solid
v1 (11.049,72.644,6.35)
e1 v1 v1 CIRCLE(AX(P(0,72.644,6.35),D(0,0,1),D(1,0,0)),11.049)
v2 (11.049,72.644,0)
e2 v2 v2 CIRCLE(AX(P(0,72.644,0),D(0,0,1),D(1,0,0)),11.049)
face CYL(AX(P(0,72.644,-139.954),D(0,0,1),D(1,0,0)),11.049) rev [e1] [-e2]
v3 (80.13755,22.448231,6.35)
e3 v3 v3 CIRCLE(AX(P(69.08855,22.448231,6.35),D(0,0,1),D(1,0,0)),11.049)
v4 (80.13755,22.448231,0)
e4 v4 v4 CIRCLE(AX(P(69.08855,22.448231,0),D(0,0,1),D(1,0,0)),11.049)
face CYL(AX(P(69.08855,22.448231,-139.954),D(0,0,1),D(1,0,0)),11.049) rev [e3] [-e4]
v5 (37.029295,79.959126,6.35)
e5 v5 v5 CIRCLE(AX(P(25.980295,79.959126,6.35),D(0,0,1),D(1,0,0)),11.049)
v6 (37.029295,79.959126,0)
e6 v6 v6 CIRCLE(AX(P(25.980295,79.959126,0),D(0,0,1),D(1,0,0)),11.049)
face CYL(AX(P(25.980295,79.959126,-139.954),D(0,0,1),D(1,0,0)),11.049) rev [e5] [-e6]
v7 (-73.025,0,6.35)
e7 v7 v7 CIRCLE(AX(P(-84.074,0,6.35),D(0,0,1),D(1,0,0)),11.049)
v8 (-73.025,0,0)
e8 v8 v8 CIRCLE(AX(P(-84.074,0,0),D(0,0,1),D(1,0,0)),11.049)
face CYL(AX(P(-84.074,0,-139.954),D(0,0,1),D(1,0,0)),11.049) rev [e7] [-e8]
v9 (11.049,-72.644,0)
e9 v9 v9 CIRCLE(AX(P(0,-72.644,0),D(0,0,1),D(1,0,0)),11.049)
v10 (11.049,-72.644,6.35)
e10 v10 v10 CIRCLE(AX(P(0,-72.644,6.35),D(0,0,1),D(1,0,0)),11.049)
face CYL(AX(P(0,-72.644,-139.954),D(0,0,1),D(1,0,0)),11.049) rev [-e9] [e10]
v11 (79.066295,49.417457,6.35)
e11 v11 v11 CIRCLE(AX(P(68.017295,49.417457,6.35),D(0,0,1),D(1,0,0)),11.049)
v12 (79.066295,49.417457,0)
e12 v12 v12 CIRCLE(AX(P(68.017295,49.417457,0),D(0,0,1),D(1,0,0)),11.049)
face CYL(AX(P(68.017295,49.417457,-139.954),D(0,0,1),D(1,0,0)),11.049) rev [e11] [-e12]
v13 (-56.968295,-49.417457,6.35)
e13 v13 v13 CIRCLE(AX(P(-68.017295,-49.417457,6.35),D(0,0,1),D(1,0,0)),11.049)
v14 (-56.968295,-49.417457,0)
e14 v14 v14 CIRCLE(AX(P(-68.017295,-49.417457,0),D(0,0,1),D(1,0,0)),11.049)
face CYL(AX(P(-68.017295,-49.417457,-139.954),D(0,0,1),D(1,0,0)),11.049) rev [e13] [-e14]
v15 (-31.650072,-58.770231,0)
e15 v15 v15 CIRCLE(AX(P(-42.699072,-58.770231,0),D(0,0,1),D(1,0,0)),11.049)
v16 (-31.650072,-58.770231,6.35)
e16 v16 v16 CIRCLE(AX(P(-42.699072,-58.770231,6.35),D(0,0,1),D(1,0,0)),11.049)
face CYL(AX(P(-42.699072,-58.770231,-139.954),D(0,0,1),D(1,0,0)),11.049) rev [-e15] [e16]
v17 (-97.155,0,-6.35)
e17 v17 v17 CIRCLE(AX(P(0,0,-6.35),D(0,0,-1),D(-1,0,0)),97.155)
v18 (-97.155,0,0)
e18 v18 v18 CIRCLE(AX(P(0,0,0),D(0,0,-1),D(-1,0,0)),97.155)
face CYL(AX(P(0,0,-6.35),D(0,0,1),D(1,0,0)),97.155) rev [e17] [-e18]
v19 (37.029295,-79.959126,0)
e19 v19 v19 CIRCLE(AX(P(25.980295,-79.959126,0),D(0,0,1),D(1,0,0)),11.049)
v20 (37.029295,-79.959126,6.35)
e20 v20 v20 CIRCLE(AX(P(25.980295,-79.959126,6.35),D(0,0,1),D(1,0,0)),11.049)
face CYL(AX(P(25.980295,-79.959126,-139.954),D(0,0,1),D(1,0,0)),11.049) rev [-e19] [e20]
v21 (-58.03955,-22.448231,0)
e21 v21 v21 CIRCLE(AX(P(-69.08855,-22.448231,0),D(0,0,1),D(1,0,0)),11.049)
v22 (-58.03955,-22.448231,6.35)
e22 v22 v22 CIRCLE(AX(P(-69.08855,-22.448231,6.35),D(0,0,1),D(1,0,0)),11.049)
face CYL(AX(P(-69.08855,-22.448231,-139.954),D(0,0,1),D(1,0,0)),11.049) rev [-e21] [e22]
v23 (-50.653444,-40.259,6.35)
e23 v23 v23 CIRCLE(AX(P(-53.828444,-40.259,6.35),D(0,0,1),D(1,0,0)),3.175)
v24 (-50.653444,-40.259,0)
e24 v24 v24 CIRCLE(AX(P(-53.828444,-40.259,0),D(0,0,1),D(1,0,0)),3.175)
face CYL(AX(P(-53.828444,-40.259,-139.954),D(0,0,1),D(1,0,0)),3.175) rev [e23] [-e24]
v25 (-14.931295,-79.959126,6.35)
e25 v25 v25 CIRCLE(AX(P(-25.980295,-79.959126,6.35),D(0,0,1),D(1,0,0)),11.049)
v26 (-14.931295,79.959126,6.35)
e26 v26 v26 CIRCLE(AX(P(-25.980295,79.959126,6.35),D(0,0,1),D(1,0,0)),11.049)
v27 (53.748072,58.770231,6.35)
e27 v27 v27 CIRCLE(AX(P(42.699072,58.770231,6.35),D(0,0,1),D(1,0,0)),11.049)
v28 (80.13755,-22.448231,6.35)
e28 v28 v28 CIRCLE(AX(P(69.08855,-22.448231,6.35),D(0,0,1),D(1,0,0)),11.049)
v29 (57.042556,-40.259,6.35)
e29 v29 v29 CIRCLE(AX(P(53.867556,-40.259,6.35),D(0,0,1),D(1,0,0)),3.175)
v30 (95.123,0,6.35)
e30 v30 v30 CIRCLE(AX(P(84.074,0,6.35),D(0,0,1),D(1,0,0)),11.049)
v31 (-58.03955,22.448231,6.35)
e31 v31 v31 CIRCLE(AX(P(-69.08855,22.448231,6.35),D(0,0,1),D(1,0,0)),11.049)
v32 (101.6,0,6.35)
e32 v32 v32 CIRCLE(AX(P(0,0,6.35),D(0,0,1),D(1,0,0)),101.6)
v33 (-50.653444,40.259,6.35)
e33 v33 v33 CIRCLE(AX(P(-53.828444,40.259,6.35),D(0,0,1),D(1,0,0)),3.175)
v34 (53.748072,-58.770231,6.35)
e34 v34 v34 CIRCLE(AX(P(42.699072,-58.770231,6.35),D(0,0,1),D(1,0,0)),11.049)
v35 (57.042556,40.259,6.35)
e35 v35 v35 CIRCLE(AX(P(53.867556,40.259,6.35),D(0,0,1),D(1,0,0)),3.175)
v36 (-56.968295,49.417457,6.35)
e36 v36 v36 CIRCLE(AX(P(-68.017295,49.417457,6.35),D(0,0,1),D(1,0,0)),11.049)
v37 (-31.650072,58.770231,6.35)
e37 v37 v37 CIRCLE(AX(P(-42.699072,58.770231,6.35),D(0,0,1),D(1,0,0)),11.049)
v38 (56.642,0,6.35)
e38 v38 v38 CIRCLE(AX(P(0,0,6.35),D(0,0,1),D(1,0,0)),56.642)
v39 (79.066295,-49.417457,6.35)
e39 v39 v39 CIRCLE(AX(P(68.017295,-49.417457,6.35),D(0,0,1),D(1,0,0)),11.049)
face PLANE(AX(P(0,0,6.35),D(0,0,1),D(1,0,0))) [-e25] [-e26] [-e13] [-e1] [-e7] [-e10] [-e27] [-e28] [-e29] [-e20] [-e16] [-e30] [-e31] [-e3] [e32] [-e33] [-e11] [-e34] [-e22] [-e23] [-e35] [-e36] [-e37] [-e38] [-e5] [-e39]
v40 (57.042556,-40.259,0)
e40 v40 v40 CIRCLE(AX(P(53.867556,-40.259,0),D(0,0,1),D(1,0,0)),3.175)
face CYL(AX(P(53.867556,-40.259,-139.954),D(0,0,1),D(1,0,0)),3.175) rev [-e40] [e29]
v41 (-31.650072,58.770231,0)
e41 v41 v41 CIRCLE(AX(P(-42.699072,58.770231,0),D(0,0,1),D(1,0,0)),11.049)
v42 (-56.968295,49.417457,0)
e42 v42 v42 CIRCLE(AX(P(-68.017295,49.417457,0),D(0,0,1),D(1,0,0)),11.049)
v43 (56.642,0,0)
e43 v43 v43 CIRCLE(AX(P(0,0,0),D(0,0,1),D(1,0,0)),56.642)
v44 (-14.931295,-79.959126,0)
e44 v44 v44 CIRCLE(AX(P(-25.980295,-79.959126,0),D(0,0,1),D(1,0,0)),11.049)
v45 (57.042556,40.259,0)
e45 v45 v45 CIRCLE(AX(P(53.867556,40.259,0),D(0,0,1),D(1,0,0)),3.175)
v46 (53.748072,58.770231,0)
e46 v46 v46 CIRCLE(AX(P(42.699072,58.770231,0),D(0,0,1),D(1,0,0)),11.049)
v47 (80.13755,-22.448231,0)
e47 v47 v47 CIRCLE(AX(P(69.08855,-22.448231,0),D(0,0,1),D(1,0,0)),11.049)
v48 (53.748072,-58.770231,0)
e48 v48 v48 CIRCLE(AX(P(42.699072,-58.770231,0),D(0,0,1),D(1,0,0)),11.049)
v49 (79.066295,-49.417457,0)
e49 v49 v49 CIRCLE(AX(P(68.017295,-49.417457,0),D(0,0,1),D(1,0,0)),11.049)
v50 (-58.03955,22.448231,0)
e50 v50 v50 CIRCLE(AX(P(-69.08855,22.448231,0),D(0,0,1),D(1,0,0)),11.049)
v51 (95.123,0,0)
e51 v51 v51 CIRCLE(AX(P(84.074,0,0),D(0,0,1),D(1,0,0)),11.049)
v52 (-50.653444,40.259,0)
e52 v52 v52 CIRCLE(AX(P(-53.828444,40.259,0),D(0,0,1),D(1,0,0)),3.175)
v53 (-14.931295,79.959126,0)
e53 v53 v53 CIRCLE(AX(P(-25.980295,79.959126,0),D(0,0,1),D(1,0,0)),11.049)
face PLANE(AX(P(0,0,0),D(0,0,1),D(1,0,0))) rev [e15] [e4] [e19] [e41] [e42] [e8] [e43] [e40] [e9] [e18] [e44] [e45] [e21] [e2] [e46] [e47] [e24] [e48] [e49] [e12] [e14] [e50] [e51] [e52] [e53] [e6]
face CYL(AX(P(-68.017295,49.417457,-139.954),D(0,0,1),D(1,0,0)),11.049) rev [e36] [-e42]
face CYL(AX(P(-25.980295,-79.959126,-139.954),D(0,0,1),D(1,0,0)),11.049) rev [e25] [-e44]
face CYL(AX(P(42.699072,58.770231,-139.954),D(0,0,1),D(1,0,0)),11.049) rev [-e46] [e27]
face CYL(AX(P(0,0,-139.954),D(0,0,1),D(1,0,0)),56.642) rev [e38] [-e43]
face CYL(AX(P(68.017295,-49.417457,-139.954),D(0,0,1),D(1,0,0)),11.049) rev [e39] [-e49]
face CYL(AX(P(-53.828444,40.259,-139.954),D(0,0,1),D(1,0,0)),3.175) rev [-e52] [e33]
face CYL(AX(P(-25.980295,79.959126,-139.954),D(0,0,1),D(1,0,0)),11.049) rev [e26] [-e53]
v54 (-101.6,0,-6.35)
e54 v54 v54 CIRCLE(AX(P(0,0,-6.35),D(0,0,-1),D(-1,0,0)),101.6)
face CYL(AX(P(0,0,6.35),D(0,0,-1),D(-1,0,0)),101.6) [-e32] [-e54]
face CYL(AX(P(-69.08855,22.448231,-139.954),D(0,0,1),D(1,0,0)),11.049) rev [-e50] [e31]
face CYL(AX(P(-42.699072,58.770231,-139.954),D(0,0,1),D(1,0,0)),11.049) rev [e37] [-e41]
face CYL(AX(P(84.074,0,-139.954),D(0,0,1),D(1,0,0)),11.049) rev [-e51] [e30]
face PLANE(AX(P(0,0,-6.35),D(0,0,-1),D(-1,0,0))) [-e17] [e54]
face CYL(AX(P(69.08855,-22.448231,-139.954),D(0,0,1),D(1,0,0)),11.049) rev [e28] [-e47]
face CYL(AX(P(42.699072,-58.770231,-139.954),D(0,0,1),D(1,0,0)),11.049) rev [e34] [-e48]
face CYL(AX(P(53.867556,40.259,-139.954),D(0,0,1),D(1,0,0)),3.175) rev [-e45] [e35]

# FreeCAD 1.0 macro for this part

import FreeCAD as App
import Part
import Sketcher
Q = App.Units.Quantity

doc = App.newDocument("Part")
params = doc.addObject("Spreadsheet::Sheet", "Params")
for row, (alias, value) in enumerate([
    ("sketch1_diameter", "8 in"),
    ("pad1_length", "0.25 in"),
    ("sketch2_diameter", "4.46 in"),
    ("pocket1_length", "5.76 in"),
    ("sketch3_diameter", "0.87 in"),
    ("pocket2_length", "5.76 in"),
    ("sketch4_diameter", "0.87 in"),
    ("pocket3_length", "5.76 in"),
    ("sketch5_diameter", "0.25 in"),
    ("pocket4_length", "5.76 in"),
    ("sketch6_diameter", "8 in"),
    ("sketch6_diameter2", "7.65 in"),
    ("pad2_length", "0.25 in"),
], start=1):
    params.set(f"A{row}", alias)
    params.set(f"B{row}", "=" + value)
    params.setAlias(f"B{row}", alias)

body = doc.addObject("PartDesign::Body", "Body")

sketch1 = doc.addObject("Sketcher::SketchObject", "Sketch")
body.addObject(sketch1)
sketch1.AttachmentSupport = (doc.XY_Plane, [""])
sketch1.MapMode = "FlatFace"
sketch1.addGeometry(Part.Circle(App.Vector(0, 0, 0), App.Vector(0, 0, 1), 102), False)
sketch1.addConstraint(Sketcher.Constraint("Coincident", 0, 3, -1, 1))
sketch1.addConstraint(Sketcher.Constraint("Diameter", 0, Q("8 in")))
sketch1.setExpression("Constraints[1]", "Params.sketch1_diameter")
pad1 = doc.addObject("PartDesign::Pad", "Pad")
body.addObject(pad1)
pad1.Profile = sketch1
pad1.setExpression("Length", "Params.pad1_length")

sketch2 = doc.addObject("Sketcher::SketchObject", "Sketch001")
body.addObject(sketch2)
sketch2.AttachmentSupport = (doc.XY_Plane, [""])
sketch2.MapMode = "FlatFace"
sketch2.AttachmentOffset = App.Placement(App.Vector(0, 0, 0.25 * 25.4), App.Rotation())
sketch2.addGeometry(Part.Circle(App.Vector(0, 0, 0), App.Vector(0, 0, 1), 57), False)
sketch2.addConstraint(Sketcher.Constraint("Coincident", 0, 3, -1, 1))
sketch2.addConstraint(Sketcher.Constraint("Diameter", 0, Q("4.46 in")))
sketch2.setExpression("Constraints[1]", "Params.sketch2_diameter")
pocket1 = doc.addObject("PartDesign::Pocket", "Pocket")
body.addObject(pocket1)
pocket1.Profile = sketch2
pocket1.setExpression("Length", "Params.pocket1_length")

sketch3 = doc.addObject("Sketcher::SketchObject", "Sketch002")
body.addObject(sketch3)
sketch3.AttachmentSupport = (doc.XY_Plane, [""])
sketch3.MapMode = "FlatFace"
sketch3.AttachmentOffset = App.Placement(App.Vector(0, 0, 0.25 * 25.4), App.Rotation())
sketch3.addGeometry(Part.Circle(App.Vector(0, 73, 0), App.Vector(0, 0, 1), 11), False)
sketch3.addGeometry(Part.Circle(App.Vector(43, 59, 0), App.Vector(0, 0, 1), 11), False)
sketch3.addGeometry(Part.Circle(App.Vector(69, 22, 0), App.Vector(0, 0, 1), 11), False)
sketch3.addGeometry(Part.Circle(App.Vector(69, -22, 0), App.Vector(0, 0, 1), 11), False)
sketch3.addGeometry(Part.Circle(App.Vector(43, -59, 0), App.Vector(0, 0, 1), 11), False)
sketch3.addGeometry(Part.Circle(App.Vector(0, -73, 0), App.Vector(0, 0, 1), 11), False)
sketch3.addGeometry(Part.Circle(App.Vector(-43, -59, 0), App.Vector(0, 0, 1), 11), False)
sketch3.addGeometry(Part.Circle(App.Vector(-69, -22, 0), App.Vector(0, 0, 1), 11), False)
sketch3.addGeometry(Part.Circle(App.Vector(-69, 22, 0), App.Vector(0, 0, 1), 11), False)
sketch3.addGeometry(Part.Circle(App.Vector(-43, 59, 0), App.Vector(0, 0, 1), 11), False)
sketch3.addConstraint(Sketcher.Constraint("Equal", 0, 1))
sketch3.addConstraint(Sketcher.Constraint("Equal", 1, 2))
sketch3.addConstraint(Sketcher.Constraint("Equal", 2, 3))
sketch3.addConstraint(Sketcher.Constraint("Equal", 3, 4))
sketch3.addConstraint(Sketcher.Constraint("Equal", 4, 5))
sketch3.addConstraint(Sketcher.Constraint("Equal", 5, 6))
sketch3.addConstraint(Sketcher.Constraint("Equal", 6, 7))
sketch3.addConstraint(Sketcher.Constraint("Equal", 7, 8))
sketch3.addConstraint(Sketcher.Constraint("Equal", 8, 9))
sketch3.addConstraint(Sketcher.Constraint("Symmetric", 0, 3, 5, 3, -1, 1))
sketch3.addConstraint(Sketcher.Constraint("Symmetric", 1, 3, 6, 3, -1, 1))
sketch3.addConstraint(Sketcher.Constraint("Symmetric", 2, 3, 7, 3, -1, 1))
sketch3.addConstraint(Sketcher.Constraint("Symmetric", 3, 3, 8, 3, -1, 1))
sketch3.addConstraint(Sketcher.Constraint("Symmetric", 4, 3, 9, 3, -1, 1))
sketch3.addConstraint(Sketcher.Constraint("Symmetric", 4, 3, 6, 3, -2))
sketch3.addConstraint(Sketcher.Constraint("Symmetric", 3, 3, 7, 3, -2))
sketch3.addConstraint(Sketcher.Constraint("PointOnObject", 0, 3, -2))
sketch3.addConstraint(Sketcher.Constraint("Diameter", 0, Q("0.87 in")))
sketch3.addConstraint(Sketcher.Constraint("DistanceY", -1, 1, 0, 3, Q("2.86 in")))
sketch3.addConstraint(Sketcher.Constraint("DistanceY", 2, 3, 1, 3, Q("1.43 in")))
sketch3.addConstraint(Sketcher.Constraint("DistanceX", -1, 1, 1, 3, 42.699072))
sketch3.addConstraint(Sketcher.Constraint("DistanceY", -1, 1, 1, 3, 58.770231))
sketch3.addConstraint(Sketcher.Constraint("DistanceX", -1, 1, 2, 3, 69.08855))
sketch3.setExpression("Constraints[17]", "Params.sketch3_diameter")
pocket2 = doc.addObject("PartDesign::Pocket", "Pocket001")
body.addObject(pocket2)
pocket2.Profile = sketch3
pocket2.setExpression("Length", "Params.pocket2_length")

sketch4 = doc.addObject("Sketcher::SketchObject", "Sketch003")
body.addObject(sketch4)
sketch4.AttachmentSupport = (doc.XY_Plane, [""])
sketch4.MapMode = "FlatFace"
sketch4.AttachmentOffset = App.Placement(App.Vector(0, 0, 0.25 * 25.4), App.Rotation())
sketch4.addGeometry(Part.Circle(App.Vector(84, 0, 0), App.Vector(0, 0, 1), 11), False)
sketch4.addGeometry(Part.Circle(App.Vector(68, -49, 0), App.Vector(0, 0, 1), 11), False)
sketch4.addGeometry(Part.Circle(App.Vector(26, -80, 0), App.Vector(0, 0, 1), 11), False)
sketch4.addGeometry(Part.Circle(App.Vector(-26, -80, 0), App.Vector(0, 0, 1), 11), False)
sketch4.addGeometry(Part.Circle(App.Vector(-68, -49, 0), App.Vector(0, 0, 1), 11), False)
sketch4.addGeometry(Part.Circle(App.Vector(-84, 0, 0), App.Vector(0, 0, 1), 11), False)
sketch4.addGeometry(Part.Circle(App.Vector(-68, 49, 0), App.Vector(0, 0, 1), 11), False)
sketch4.addGeometry(Part.Circle(App.Vector(-26, 80, 0), App.Vector(0, 0, 1), 11), False)
sketch4.addGeometry(Part.Circle(App.Vector(26, 80, 0), App.Vector(0, 0, 1), 11), False)
sketch4.addGeometry(Part.Circle(App.Vector(68, 49, 0), App.Vector(0, 0, 1), 11), False)
sketch4.addConstraint(Sketcher.Constraint("Equal", 0, 1))
sketch4.addConstraint(Sketcher.Constraint("Equal", 1, 2))
sketch4.addConstraint(Sketcher.Constraint("Equal", 2, 3))
sketch4.addConstraint(Sketcher.Constraint("Equal", 3, 4))
sketch4.addConstraint(Sketcher.Constraint("Equal", 4, 5))
sketch4.addConstraint(Sketcher.Constraint("Equal", 5, 6))
sketch4.addConstraint(Sketcher.Constraint("Equal", 6, 7))
sketch4.addConstraint(Sketcher.Constraint("Equal", 7, 8))
sketch4.addConstraint(Sketcher.Constraint("Equal", 8, 9))
sketch4.addConstraint(Sketcher.Constraint("Symmetric", 0, 3, 5, 3, -1, 1))
sketch4.addConstraint(Sketcher.Constraint("Symmetric", 1, 3, 6, 3, -1, 1))
sketch4.addConstraint(Sketcher.Constraint("Symmetric", 2, 3, 7, 3, -1, 1))
sketch4.addConstraint(Sketcher.Constraint("Symmetric", 3, 3, 8, 3, -1, 1))
sketch4.addConstraint(Sketcher.Constraint("Symmetric", 4, 3, 9, 3, -1, 1))
sketch4.addConstraint(Sketcher.Constraint("Symmetric", 2, 3, 3, 3, -2))
sketch4.addConstraint(Sketcher.Constraint("Symmetric", 1, 3, 4, 3, -2))
sketch4.addConstraint(Sketcher.Constraint("PointOnObject", 0, 3, -1))
sketch4.addConstraint(Sketcher.Constraint("Diameter", 0, Q("0.87 in")))
sketch4.addConstraint(Sketcher.Constraint("DistanceX", -1, 1, 0, 3, Q("3.31 in")))
sketch4.addConstraint(Sketcher.Constraint("DistanceX", 2, 3, 1, 3, Q("1.655 in")))
sketch4.addConstraint(Sketcher.Constraint("DistanceY", 2, 3, 1, 3, 30.541668))
sketch4.addConstraint(Sketcher.Constraint("DistanceX", 3, 3, 2, 3, 51.96059))
sketch4.addConstraint(Sketcher.Constraint("DistanceY", 1, 3, -1, 1, 49.417457))
sketch4.setExpression("Constraints[17]", "Params.sketch4_diameter")
pocket3 = doc.addObject("PartDesign::Pocket", "Pocket002")
body.addObject(pocket3)
pocket3.Profile = sketch4
pocket3.setExpression("Length", "Params.pocket3_length")

sketch5 = doc.addObject("Sketcher::SketchObject", "Sketch004")
body.addObject(sketch5)
sketch5.AttachmentSupport = (doc.XY_Plane, [""])
sketch5.MapMode = "FlatFace"
sketch5.AttachmentOffset = App.Placement(App.Vector(0, 0, 0.25 * 25.4), App.Rotation())
sketch5.addGeometry(Part.Circle(App.Vector(53.9, 40.3, 0), App.Vector(0, 0, 1), 3.2), False)
sketch5.addGeometry(Part.Circle(App.Vector(-53.8, 40.3, 0), App.Vector(0, 0, 1), 3.2), False)
sketch5.addGeometry(Part.Circle(App.Vector(-53.8, -40.3, 0), App.Vector(0, 0, 1), 3.2), False)
sketch5.addGeometry(Part.Circle(App.Vector(53.9, -40.3, 0), App.Vector(0, 0, 1), 3.2), False)
sketch5.addConstraint(Sketcher.Constraint("Equal", 0, 1))
sketch5.addConstraint(Sketcher.Constraint("Equal", 1, 2))
sketch5.addConstraint(Sketcher.Constraint("Equal", 2, 3))
sketch5.addConstraint(Sketcher.Constraint("Symmetric", 1, 3, 2, 3, -1))
sketch5.addConstraint(Sketcher.Constraint("Symmetric", 0, 3, 3, 3, -1))
sketch5.addConstraint(Sketcher.Constraint("Horizontal", 0, 3, 1, 3))
sketch5.addConstraint(Sketcher.Constraint("Diameter", 0, Q("0.25 in")))
sketch5.addConstraint(Sketcher.Constraint("DistanceX", 1, 3, 0, 3, Q("4.24 in")))
sketch5.addConstraint(Sketcher.Constraint("DistanceY", 2, 3, 1, 3, Q("3.17 in")))
sketch5.addConstraint(Sketcher.Constraint("DistanceX", -1, 1, 0, 3, 53.867556))
sketch5.setExpression("Constraints[6]", "Params.sketch5_diameter")
pocket4 = doc.addObject("PartDesign::Pocket", "Pocket003")
body.addObject(pocket4)
pocket4.Profile = sketch5
pocket4.setExpression("Length", "Params.pocket4_length")

sketch6 = doc.addObject("Sketcher::SketchObject", "Sketch005")
body.addObject(sketch6)
sketch6.AttachmentSupport = (doc.XY_Plane, [""])
sketch6.MapMode = "FlatFace"
sketch6.AttachmentOffset = App.Placement(App.Vector(0, 0, -0.25 * 25.4), App.Rotation())
sketch6.addGeometry(Part.Circle(App.Vector(0, 0, 0), App.Vector(0, 0, 1), 102), False)
sketch6.addGeometry(Part.Circle(App.Vector(0, 0, 0), App.Vector(0, 0, 1), 97), False)
sketch6.addConstraint(Sketcher.Constraint("Coincident", 0, 3, -1, 1))
sketch6.addConstraint(Sketcher.Constraint("Coincident", 1, 3, -1, 1))
sketch6.addConstraint(Sketcher.Constraint("Diameter", 0, Q("8 in")))
sketch6.addConstraint(Sketcher.Constraint("Diameter", 1, Q("7.65 in")))
sketch6.setExpression("Constraints[2]", "Params.sketch6_diameter")
sketch6.setExpression("Constraints[3]", "Params.sketch6_diameter2")
pad2 = doc.addObject("PartDesign::Pad", "Pad001")
body.addObject(pad2)
pad2.Profile = sketch6
pad2.setExpression("Length", "Params.pad2_length")

doc.recompute()
